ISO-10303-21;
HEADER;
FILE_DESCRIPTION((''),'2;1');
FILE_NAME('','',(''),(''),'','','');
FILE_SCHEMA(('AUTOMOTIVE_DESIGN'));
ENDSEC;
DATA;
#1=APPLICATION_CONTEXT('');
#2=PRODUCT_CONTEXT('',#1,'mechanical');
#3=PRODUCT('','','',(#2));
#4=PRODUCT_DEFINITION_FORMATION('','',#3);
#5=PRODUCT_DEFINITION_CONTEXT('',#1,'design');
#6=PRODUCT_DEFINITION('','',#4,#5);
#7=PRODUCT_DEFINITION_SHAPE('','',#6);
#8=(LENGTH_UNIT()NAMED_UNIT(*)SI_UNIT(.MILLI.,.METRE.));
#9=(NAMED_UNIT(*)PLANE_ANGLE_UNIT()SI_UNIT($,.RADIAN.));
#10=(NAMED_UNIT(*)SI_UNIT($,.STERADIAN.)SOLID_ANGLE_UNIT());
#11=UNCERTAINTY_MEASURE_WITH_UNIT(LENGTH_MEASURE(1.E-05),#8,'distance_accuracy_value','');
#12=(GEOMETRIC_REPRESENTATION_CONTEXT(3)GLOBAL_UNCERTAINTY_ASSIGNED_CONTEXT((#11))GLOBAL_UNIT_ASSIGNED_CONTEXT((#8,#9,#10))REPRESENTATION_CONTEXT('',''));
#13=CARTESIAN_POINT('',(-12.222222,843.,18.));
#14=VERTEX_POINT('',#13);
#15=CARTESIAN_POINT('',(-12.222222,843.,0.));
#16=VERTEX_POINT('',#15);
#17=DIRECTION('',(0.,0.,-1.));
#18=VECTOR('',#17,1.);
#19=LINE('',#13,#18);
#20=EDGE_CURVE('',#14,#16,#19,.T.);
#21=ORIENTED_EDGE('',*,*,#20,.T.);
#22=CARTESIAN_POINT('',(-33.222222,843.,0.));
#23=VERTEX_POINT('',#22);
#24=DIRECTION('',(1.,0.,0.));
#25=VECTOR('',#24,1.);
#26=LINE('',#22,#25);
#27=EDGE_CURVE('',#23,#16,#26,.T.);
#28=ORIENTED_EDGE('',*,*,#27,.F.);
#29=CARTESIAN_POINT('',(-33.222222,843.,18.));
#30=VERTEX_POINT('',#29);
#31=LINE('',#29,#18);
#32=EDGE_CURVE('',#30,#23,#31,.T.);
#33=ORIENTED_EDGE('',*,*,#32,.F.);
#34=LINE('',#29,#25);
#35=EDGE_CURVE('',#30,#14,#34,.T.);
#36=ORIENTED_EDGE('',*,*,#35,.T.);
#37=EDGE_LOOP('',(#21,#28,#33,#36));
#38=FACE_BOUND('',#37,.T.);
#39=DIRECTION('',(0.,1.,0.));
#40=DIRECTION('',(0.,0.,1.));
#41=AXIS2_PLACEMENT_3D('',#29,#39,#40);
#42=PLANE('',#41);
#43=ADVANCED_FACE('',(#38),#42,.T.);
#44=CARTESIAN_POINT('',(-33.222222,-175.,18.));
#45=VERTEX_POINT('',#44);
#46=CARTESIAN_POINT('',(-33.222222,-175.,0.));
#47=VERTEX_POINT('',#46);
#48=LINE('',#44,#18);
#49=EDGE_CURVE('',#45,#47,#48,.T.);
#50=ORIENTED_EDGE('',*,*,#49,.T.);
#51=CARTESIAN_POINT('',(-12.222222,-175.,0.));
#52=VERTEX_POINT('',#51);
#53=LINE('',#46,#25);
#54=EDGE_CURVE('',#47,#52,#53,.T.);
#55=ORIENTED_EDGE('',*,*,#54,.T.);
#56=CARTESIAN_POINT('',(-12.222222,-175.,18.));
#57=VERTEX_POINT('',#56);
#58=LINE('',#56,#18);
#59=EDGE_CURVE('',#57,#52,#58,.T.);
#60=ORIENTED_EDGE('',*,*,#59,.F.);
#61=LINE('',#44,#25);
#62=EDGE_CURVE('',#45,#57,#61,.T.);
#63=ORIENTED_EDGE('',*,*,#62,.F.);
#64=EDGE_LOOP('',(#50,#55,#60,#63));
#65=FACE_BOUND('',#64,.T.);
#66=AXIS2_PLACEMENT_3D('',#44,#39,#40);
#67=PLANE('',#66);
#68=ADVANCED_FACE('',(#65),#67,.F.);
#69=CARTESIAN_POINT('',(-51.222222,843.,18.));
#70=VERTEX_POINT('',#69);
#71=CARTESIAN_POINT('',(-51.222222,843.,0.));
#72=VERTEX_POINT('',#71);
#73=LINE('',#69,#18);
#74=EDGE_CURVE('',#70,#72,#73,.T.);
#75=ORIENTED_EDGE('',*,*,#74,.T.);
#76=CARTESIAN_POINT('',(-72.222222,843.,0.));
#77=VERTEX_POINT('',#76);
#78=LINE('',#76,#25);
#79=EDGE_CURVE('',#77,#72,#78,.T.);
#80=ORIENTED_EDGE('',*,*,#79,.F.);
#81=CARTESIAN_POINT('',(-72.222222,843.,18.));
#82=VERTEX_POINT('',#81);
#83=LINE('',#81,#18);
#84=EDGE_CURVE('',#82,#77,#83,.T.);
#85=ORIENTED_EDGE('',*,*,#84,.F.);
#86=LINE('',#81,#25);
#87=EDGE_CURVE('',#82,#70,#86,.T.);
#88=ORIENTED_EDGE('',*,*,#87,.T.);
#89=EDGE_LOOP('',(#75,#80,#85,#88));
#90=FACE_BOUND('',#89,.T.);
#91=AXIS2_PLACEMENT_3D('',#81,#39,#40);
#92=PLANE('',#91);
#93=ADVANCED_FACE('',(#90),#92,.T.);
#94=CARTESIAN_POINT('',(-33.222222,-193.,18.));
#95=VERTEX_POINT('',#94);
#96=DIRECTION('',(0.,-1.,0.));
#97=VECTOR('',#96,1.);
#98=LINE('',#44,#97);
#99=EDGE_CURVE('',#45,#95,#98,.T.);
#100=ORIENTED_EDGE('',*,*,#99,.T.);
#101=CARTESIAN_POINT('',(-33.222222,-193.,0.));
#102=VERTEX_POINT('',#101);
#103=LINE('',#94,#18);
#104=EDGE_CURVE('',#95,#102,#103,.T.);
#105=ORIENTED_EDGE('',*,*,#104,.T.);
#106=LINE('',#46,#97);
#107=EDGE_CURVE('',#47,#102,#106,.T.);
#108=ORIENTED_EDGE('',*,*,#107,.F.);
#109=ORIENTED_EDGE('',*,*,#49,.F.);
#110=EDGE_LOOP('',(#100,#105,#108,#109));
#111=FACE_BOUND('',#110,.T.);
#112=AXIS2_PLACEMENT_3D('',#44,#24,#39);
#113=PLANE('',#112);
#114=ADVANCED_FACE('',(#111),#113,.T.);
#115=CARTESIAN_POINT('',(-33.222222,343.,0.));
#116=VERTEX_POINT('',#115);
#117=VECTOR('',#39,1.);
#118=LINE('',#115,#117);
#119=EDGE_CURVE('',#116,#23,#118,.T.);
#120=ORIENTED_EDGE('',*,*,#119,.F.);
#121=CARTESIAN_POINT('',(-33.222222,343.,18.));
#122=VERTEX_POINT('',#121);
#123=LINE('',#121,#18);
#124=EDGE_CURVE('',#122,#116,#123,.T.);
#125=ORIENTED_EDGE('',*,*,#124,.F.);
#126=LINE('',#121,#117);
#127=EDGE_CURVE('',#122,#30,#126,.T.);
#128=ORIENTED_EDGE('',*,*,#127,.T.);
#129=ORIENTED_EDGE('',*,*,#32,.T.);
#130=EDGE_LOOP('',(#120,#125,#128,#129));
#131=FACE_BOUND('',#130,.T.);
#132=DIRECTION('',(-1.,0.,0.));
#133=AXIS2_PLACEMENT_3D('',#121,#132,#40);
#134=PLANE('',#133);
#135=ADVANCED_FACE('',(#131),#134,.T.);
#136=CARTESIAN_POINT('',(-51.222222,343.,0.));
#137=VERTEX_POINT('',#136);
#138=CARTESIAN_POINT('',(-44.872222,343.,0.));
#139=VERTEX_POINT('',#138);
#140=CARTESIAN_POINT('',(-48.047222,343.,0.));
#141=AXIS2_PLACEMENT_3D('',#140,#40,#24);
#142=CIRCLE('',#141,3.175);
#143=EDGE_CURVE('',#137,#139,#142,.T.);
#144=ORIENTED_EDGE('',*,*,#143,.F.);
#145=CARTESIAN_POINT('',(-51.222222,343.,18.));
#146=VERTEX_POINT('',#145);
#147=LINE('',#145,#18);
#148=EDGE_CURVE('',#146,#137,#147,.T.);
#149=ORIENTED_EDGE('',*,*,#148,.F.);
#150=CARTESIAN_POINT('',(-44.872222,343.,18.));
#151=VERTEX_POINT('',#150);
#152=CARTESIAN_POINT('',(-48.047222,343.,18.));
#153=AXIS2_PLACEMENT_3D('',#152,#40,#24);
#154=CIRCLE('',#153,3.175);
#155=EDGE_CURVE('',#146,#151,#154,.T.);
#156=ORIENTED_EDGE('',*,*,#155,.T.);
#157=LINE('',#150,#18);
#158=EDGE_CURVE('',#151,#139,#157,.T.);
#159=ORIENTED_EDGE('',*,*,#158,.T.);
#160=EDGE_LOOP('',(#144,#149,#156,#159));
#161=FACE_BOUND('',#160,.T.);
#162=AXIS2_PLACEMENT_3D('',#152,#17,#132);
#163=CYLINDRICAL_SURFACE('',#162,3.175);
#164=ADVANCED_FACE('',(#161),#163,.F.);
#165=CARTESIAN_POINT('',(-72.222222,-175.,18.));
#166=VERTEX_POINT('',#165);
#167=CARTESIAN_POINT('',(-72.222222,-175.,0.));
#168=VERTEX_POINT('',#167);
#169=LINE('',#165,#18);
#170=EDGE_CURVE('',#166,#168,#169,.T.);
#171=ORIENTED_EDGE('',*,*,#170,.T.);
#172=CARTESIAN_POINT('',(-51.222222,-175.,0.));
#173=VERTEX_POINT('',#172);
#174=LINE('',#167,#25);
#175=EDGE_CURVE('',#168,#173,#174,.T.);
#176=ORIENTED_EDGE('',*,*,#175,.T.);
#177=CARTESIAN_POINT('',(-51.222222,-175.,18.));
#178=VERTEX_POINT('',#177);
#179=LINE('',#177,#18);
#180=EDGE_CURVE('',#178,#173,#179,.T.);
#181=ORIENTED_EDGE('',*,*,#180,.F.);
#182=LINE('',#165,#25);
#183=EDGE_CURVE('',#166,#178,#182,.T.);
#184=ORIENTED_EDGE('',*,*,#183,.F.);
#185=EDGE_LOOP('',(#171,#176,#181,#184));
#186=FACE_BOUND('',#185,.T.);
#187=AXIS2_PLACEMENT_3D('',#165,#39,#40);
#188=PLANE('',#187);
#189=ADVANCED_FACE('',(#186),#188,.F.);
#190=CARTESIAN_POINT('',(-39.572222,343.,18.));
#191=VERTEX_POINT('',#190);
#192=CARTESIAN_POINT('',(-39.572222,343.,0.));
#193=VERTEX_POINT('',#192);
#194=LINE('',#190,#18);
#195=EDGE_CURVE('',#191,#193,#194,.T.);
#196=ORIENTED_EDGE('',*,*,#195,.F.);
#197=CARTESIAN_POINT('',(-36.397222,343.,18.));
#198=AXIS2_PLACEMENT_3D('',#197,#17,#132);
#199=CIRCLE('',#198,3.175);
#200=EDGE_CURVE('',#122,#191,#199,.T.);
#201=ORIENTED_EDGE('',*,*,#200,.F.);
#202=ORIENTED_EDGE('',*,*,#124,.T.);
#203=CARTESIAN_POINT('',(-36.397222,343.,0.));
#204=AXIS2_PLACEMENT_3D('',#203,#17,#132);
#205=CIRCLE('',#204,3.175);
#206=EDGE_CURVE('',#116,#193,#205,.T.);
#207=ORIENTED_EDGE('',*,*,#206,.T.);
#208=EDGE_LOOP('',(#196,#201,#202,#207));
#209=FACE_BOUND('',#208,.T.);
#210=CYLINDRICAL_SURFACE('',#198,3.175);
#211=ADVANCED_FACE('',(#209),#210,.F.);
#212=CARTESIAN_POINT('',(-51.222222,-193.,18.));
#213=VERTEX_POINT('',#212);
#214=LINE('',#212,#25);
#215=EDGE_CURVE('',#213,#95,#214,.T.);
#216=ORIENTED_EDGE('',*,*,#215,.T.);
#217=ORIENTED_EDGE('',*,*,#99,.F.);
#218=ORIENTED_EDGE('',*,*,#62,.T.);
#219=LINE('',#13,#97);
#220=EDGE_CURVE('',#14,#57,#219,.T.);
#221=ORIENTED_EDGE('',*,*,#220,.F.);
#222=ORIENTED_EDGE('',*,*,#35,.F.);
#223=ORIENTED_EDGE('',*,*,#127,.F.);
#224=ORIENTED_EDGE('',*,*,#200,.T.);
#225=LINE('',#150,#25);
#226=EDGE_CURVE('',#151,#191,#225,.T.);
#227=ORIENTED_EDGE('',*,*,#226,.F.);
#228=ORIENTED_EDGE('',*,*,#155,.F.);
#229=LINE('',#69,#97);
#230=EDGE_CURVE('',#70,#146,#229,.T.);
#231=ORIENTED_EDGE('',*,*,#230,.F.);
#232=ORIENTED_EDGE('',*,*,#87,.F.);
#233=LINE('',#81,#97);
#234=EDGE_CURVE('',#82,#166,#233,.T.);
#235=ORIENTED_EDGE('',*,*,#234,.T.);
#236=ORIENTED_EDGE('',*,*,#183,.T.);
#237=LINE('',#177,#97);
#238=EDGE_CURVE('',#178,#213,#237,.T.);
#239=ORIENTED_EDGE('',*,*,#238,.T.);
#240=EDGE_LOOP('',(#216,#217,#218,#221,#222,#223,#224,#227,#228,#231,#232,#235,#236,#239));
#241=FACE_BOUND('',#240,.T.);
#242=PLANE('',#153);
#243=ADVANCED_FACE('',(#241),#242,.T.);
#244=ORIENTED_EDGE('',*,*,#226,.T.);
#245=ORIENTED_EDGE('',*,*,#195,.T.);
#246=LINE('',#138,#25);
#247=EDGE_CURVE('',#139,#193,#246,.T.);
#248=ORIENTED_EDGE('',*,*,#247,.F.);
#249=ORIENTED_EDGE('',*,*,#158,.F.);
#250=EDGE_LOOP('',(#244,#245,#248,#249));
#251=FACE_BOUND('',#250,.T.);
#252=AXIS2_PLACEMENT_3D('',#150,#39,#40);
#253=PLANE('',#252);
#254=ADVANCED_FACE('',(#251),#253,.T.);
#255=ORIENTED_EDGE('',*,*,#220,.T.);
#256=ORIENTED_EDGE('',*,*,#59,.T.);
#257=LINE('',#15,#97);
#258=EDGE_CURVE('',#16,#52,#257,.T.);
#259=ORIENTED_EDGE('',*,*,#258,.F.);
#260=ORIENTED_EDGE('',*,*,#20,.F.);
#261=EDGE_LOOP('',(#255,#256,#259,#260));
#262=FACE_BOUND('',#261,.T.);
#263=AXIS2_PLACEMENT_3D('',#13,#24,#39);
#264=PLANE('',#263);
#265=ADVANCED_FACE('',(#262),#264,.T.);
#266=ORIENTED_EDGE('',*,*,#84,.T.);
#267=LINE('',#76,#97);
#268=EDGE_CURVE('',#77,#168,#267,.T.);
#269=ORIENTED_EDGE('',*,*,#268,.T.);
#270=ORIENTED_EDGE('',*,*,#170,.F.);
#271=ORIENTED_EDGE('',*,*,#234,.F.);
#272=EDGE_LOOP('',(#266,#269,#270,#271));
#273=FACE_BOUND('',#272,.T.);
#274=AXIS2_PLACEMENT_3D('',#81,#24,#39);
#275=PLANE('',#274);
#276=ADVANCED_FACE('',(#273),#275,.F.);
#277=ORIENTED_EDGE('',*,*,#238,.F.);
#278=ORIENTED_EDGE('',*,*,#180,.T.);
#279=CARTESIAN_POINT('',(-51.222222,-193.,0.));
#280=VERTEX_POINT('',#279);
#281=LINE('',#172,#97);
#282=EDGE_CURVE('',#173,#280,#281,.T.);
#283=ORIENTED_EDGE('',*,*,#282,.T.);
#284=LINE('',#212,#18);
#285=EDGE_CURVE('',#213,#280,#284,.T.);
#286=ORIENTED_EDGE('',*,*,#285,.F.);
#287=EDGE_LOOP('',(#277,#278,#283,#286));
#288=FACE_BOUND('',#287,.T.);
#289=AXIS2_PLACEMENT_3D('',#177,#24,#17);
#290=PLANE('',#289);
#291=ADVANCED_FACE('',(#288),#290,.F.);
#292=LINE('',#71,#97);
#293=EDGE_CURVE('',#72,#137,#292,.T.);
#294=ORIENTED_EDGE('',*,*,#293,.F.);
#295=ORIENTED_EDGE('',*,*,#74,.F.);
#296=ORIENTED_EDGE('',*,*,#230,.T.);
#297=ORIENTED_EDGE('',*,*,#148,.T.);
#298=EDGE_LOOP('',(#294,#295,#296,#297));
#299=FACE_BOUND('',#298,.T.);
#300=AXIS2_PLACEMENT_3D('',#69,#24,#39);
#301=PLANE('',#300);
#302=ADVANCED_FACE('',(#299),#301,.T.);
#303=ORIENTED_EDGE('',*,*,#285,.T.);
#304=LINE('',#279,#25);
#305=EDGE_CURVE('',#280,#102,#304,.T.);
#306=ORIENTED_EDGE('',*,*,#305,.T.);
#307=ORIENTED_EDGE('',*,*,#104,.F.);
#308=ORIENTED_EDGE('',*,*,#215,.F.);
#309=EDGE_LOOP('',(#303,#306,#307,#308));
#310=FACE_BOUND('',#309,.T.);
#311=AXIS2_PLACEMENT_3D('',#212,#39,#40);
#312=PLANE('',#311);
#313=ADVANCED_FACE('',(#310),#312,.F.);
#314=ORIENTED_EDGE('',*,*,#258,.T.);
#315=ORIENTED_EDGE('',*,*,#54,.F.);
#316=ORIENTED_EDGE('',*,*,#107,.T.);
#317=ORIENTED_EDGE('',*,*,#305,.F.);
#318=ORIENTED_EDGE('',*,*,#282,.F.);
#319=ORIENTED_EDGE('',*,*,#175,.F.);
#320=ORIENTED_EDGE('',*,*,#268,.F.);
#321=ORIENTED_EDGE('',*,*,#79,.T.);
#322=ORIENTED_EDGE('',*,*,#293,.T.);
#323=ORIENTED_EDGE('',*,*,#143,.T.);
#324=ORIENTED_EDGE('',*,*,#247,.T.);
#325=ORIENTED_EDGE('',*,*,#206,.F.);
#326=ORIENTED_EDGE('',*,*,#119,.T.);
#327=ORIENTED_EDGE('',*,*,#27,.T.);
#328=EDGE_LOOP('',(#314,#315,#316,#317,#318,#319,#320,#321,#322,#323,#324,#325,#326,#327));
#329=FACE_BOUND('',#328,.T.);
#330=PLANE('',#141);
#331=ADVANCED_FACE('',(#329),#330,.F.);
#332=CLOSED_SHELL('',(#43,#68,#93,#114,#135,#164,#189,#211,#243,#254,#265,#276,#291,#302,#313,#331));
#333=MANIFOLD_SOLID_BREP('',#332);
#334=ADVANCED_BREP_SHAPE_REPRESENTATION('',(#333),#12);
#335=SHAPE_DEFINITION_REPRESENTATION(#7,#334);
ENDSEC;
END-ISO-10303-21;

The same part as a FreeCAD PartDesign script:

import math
import FreeCAD as App
import Part
import Sketcher

V = App.Vector
Q = App.Units.Quantity

doc = App.newDocument("Part")
body = doc.addObject("PartDesign::Body", "Body")

sketch1 = body.newObject("Sketcher::SketchObject", "Sketch")
sketch1.AttachmentSupport = (doc.getObject("XY_Plane"), [""])
sketch1.MapMode = "FlatFace"
sketch1.addGeometry([
    Part.LineSegment(V(-51.2, 343, 0), V(-51.2, 843, 0)),
    Part.LineSegment(V(-51.2, 843, 0), V(-72.2, 843, 0)),
    Part.LineSegment(V(-72.2, 843, 0), V(-72.2, -175, 0)),
    Part.LineSegment(V(-72.2, -175, 0), V(-51.2, -175, 0)),
    Part.LineSegment(V(-51.2, -175, 0), V(-51.2, -193, 0)),
    Part.LineSegment(V(-51.2, -193, 0), V(-33.2, -193, 0)),
    Part.LineSegment(V(-33.2, -193, 0), V(-33.2, -175, 0)),
    Part.LineSegment(V(-33.2, -175, 0), V(-12.2, -175, 0)),
    Part.LineSegment(V(-12.2, -175, 0), V(-12.2, 843, 0)),
    Part.LineSegment(V(-12.2, 843, 0), V(-33.2, 843, 0)),
    Part.LineSegment(V(-33.2, 843, 0), V(-33.2, 343, 0)),
    Part.ArcOfCircle(Part.Circle(V(-36.4, 343, 0), V(0, 0, 1), 3.2), math.radians(180), math.radians(360)),
    Part.LineSegment(V(-39.6, 343, 0), V(-44.9, 343, 0)),
    Part.ArcOfCircle(Part.Circle(V(-48, 343, 0), V(0, 0, 1), 3.2), math.radians(180), math.radians(360)),
], False)
sketch1.addConstraint([
    Sketcher.Constraint("Coincident", 0, 2, 1, 1),
    Sketcher.Constraint("Coincident", 1, 2, 2, 1),
    Sketcher.Constraint("Coincident", 2, 2, 3, 1),
    Sketcher.Constraint("Coincident", 3, 2, 4, 1),
    Sketcher.Constraint("Coincident", 4, 2, 5, 1),
    Sketcher.Constraint("Coincident", 5, 2, 6, 1),
    Sketcher.Constraint("Coincident", 6, 2, 7, 1),
    Sketcher.Constraint("Coincident", 7, 2, 8, 1),
    Sketcher.Constraint("Coincident", 8, 2, 9, 1),
    Sketcher.Constraint("Coincident", 9, 2, 10, 1),
    Sketcher.Constraint("Tangent", 10, 2, 11, 2),
    Sketcher.Constraint("Coincident", 11, 1, 12, 1),
    Sketcher.Constraint("Coincident", 12, 2, 13, 2),
    Sketcher.Constraint("Tangent", 13, 1, 0, 1),
    Sketcher.Constraint("Vertical", 0),
    Sketcher.Constraint("Horizontal", 1),
    Sketcher.Constraint("Vertical", 2),
    Sketcher.Constraint("Horizontal", 3),
    Sketcher.Constraint("Vertical", 4),
    Sketcher.Constraint("Horizontal", 5),
    Sketcher.Constraint("Vertical", 6),
    Sketcher.Constraint("Horizontal", 7),
    Sketcher.Constraint("Vertical", 8),
    Sketcher.Constraint("Horizontal", 9),
    Sketcher.Constraint("Vertical", 10),
    Sketcher.Constraint("Horizontal", 12),
    Sketcher.Constraint("Equal", 11, 13),
    Sketcher.Constraint("Horizontal", 11, 3, 13, 3),
    Sketcher.Constraint("Horizontal", 3, 2, 6, 2),
    Sketcher.Constraint("Horizontal", 1, 2, 8, 2),
    Sketcher.Constraint("Horizontal", 10, 2, 11, 1),
    Sketcher.Constraint("Vertical", 0, 2, 3, 2),
    Sketcher.Constraint("Vertical", 6, 2, 9, 2),
    Sketcher.Constraint("Equal", 3, 7),
    Sketcher.Constraint("Equal", 5, 4),
    Sketcher.Constraint("DistanceX", 1, 2, 1, 1, Q("21 mm")),
    Sketcher.Constraint("DistanceX", 5, 1, 5, 2, Q("18 mm")),
    Sketcher.Constraint("DistanceY", 0, 1, 0, 2, Q("500 mm")),
    Sketcher.Constraint("DistanceY", 2, 2, 2, 1, Q("1018 mm")),
    Sketcher.Constraint("DistanceX", 12, 2, 12, 1, Q("5.3 mm")),
    Sketcher.Constraint("DistanceY", -1, 1, 11, 3, Q("343 mm")),
    Sketcher.Constraint("DistanceX", 11, 3, -1, 1, Q("36.397222 mm")),
])
pad1 = body.newObject("PartDesign::Pad", "Pad")
pad1.Profile = sketch1
pad1.Length = 18

doc.recompute()
